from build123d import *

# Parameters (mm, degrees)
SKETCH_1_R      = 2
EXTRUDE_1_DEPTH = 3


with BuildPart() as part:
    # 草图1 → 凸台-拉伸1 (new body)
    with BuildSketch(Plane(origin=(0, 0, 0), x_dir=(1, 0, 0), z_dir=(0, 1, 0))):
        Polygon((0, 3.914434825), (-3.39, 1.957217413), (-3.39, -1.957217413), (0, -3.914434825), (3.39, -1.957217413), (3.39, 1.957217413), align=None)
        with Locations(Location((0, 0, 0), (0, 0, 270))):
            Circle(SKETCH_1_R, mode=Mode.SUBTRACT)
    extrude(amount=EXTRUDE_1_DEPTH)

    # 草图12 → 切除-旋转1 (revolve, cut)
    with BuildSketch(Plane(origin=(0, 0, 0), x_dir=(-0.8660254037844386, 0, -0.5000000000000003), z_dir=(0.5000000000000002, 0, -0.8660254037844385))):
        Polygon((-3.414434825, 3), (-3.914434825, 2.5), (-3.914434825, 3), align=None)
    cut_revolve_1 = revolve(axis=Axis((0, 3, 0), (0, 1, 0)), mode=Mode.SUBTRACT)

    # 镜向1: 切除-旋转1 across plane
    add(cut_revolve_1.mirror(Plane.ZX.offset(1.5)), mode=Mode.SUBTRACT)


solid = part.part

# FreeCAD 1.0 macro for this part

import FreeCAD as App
import Part
import Sketcher

V = App.Vector
Q = App.Units.Quantity

doc = App.newDocument("Part")
body = doc.addObject("PartDesign::Body", "Body")

sketch1 = body.newObject("Sketcher::SketchObject", "Sketch")
sketch1.AttachmentSupport = (doc.getObject("XZ_Plane"), [""])
sketch1.MapMode = "FlatFace"
sketch1.addGeometry(Part.LineSegment(V(0, -3.914435, 0), V(-3.39, -1.957217, 0)), False)
sketch1.addGeometry(Part.LineSegment(V(-3.39, -1.957217, 0), V(-3.39, 1.957217, 0)), False)
sketch1.addGeometry(Part.LineSegment(V(-3.39, 1.957217, 0), V(0, 3.914435, 0)), False)
sketch1.addGeometry(Part.LineSegment(V(0, 3.914435, 0), V(3.39, 1.957217, 0)), False)
sketch1.addGeometry(Part.LineSegment(V(3.39, 1.957217, 0), V(3.39, -1.957217, 0)), False)
sketch1.addGeometry(Part.LineSegment(V(3.39, -1.957217, 0), V(0, -3.914435, 0)), False)
sketch1.addGeometry(Part.Circle(V(0, 0, 0), V(0, 0, 1), 2), False)
sketch1.addConstraint(Sketcher.Constraint("Coincident", 0, 2, 1, 1))
sketch1.addConstraint(Sketcher.Constraint("Coincident", 1, 2, 2, 1))
sketch1.addConstraint(Sketcher.Constraint("Coincident", 2, 2, 3, 1))
sketch1.addConstraint(Sketcher.Constraint("Coincident", 3, 2, 4, 1))
sketch1.addConstraint(Sketcher.Constraint("Coincident", 4, 2, 5, 1))
sketch1.addConstraint(Sketcher.Constraint("Coincident", 5, 2, 0, 1))
sketch1.addConstraint(Sketcher.Constraint("Vertical", 1))
sketch1.addConstraint(Sketcher.Constraint("Vertical", 4))
sketch1.addConstraint(Sketcher.Constraint("Coincident", 6, 3, -1, 1))
sketch1.addConstraint(Sketcher.Constraint("Symmetric", 0, 2, 3, 2, -1, 1))
sketch1.addConstraint(Sketcher.Constraint("Symmetric", 2, 2, 5, 2, -1, 1))
sketch1.addConstraint(Sketcher.Constraint("PointOnObject", 2, 2, -2))
sketch1.addConstraint(Sketcher.Constraint("Parallel", 2, 5))
sketch1.addConstraint(Sketcher.Constraint("Horizontal", 1, 2, 3, 2))
sketch1.addConstraint(Sketcher.Constraint("Diameter", 6, 4.0))
sketch1.addConstraint(Sketcher.Constraint("Angle", 0, Q("150 deg")))
sketch1.addConstraint(Sketcher.Constraint("DistanceX", 0, 2, -1, 1, 3.39))
sketch1.addConstraint(Sketcher.Constraint("DistanceY", 1, 1, 1, 2, 3.914435))
pad1 = body.newObject("PartDesign::Pad", "Pad")
pad1.Profile = sketch1
pad1.Length = 3
pad1.Reversed = True

sketch2 = body.newObject("Sketcher::SketchObject", "Sketch001")
sketch2.Placement = App.Placement(V(0, 0, 0), App.Rotation(V(-0.866025404, 0, -0.5), V(0, 1, 0), V(0.5, 0, -0.866025404), "ZXY"))
sketch2.addGeometry(Part.LineSegment(V(-3.914435, 2.5, 0), V(-3.414435, 3, 0)), False)
sketch2.addGeometry(Part.LineSegment(V(-3.414435, 3, 0), V(-3.914435, 3, 0)), False)
sketch2.addGeometry(Part.LineSegment(V(-3.914435, 3, 0), V(-3.914435, 2.5, 0)), False)
sketch2.addConstraint(Sketcher.Constraint("Coincident", 0, 2, 1, 1))
sketch2.addConstraint(Sketcher.Constraint("Coincident", 1, 2, 2, 1))
sketch2.addConstraint(Sketcher.Constraint("Coincident", 2, 2, 0, 1))
sketch2.addConstraint(Sketcher.Constraint("Horizontal", 1))
sketch2.addConstraint(Sketcher.Constraint("Vertical", 2))
sketch2.addConstraint(Sketcher.Constraint("Equal", 1, 2))
sketch2.addConstraint(Sketcher.Constraint("DistanceX", 1, 2, 1, 1, 0.5))
sketch2.addConstraint(Sketcher.Constraint("DistanceY", -1, 1, 0, 2, 3.0))
sketch2.addConstraint(Sketcher.Constraint("DistanceX", 0, 2, -1, 1, 3.414435))
groove = body.newObject("PartDesign::Groove", "Groove")
groove.Profile = sketch2
groove.ReferenceAxis = (sketch2, ["V_Axis"])
groove.Angle = 360
doc.recompute()

datumplane = body.newObject("PartDesign::Plane", "DatumPlane")
datumplane.AttachmentSupport = (doc.getObject("XZ_Plane"), [""])
datumplane.MapMode = "FlatFace"
datumplane.AttachmentOffset = App.Placement(V(0, 0, -1.5), App.Rotation())
mirrored = body.newObject("PartDesign::Mirrored", "Mirrored")
mirrored.Originals = [groove]
mirrored.MirrorPlane = (datumplane, [""])
body.Tip = mirrored

doc.recompute()
